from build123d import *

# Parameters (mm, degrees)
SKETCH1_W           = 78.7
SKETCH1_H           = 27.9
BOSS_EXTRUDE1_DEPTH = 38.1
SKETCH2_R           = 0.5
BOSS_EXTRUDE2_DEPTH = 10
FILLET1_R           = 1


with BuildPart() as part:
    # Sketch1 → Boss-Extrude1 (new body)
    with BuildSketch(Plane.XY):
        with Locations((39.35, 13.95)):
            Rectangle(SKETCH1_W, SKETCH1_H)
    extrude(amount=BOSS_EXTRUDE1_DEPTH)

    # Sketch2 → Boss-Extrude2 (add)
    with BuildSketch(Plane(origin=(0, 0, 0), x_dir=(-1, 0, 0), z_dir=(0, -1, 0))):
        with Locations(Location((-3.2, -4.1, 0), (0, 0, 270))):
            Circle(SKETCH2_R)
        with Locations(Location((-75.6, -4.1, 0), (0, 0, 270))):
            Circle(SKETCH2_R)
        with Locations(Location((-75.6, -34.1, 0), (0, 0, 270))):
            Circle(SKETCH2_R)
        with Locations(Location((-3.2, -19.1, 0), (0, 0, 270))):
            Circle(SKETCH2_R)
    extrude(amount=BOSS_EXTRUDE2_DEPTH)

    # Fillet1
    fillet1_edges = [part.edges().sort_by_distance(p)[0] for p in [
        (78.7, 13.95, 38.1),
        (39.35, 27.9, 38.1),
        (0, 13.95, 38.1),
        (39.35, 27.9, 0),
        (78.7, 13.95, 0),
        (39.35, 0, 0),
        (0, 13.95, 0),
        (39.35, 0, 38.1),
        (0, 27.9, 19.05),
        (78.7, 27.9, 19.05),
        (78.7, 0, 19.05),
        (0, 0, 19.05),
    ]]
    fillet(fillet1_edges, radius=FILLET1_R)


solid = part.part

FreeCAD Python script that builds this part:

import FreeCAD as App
import Part
import Sketcher

V = App.Vector


def edges_at(feature, points):
    """Names of the edges that pass closest to the given points."""
    edges = feature.Shape.Edges
    near = lambda p: min(range(len(edges)), key=lambda i: edges[i].distToShape(Part.Vertex(*p))[0])
    return sorted({f"Edge{near(p) + 1}" for p in points})


def add_polygon(sketch, points):
    """Adds a closed chain of lines whose ends are joined by coincident constraints."""
    first, n = sketch.GeometryCount, len(points)
    for a, b in zip(points, points[1:] + points[:1]):
        sketch.addGeometry(Part.LineSegment(App.Vector(*a, 0), App.Vector(*b, 0)), False)
    for i in range(n):
        sketch.addConstraint(Sketcher.Constraint("Coincident", first + i, 2, first + (i + 1) % n, 1))

doc = App.newDocument("Part")
body = doc.addObject("PartDesign::Body", "Body")

# Sketch on XY plane
sketch1 = doc.addObject("Sketcher::SketchObject", "Sketch")
body.addObject(sketch1)
sketch1.AttachmentSupport = (doc.XY_Plane, [""])
sketch1.MapMode = "FlatFace"
add_polygon(sketch1, [(0, 27.9), (0, 0), (78.7, 0), (78.7, 27.9)])  # lines 0-3
sketch1.addConstraint(Sketcher.Constraint("Vertical", 0))
sketch1.addConstraint(Sketcher.Constraint("Horizontal", 1))
sketch1.addConstraint(Sketcher.Constraint("Vertical", 2))
sketch1.addConstraint(Sketcher.Constraint("Horizontal", 3))
sketch1.addConstraint(Sketcher.Constraint("Coincident", 0, 2, -1, 1))
sketch1.addConstraint(Sketcher.Constraint("DistanceX", 1, 1, 1, 2, 78.7))
sketch1.addConstraint(Sketcher.Constraint("DistanceY", 0, 2, 0, 1, 27.9))
pad1 = doc.addObject("PartDesign::Pad", "Pad")
body.addObject(pad1)
pad1.Profile = sketch1
pad1.Length = 38.1

# Sketch on XZ plane
sketch2 = doc.addObject("Sketcher::SketchObject", "Sketch001")
body.addObject(sketch2)
sketch2.AttachmentSupport = (doc.XZ_Plane, [""])
sketch2.MapMode = "FlatFace"
sketch2.addGeometry(Part.Circle(V(3.2, 4.1, 0), V(0, 0, 1), 0.5), False)
sketch2.addGeometry(Part.Circle(V(75.6, 4.1, 0), V(0, 0, 1), 0.5), False)
sketch2.addGeometry(Part.Circle(V(75.6, 34.1, 0), V(0, 0, 1), 0.5), False)
sketch2.addGeometry(Part.Circle(V(3.2, 19.1, 0), V(0, 0, 1), 0.5), False)
sketch2.addConstraint(Sketcher.Constraint("Equal", 0, 1))
sketch2.addConstraint(Sketcher.Constraint("Equal", 1, 2))
sketch2.addConstraint(Sketcher.Constraint("Equal", 2, 3))
sketch2.addConstraint(Sketcher.Constraint("Horizontal", 0, 3, 1, 3))
sketch2.addConstraint(Sketcher.Constraint("Vertical", 1, 3, 2, 3))
sketch2.addConstraint(Sketcher.Constraint("Vertical", 0, 3, 3, 3))
sketch2.addConstraint(Sketcher.Constraint("Diameter", 0, 1.0))
sketch2.addConstraint(Sketcher.Constraint("DistanceY", 1, 3, 2, 3, 30.0))
sketch2.addConstraint(Sketcher.Constraint("DistanceY", 0, 3, 3, 3, 15.0))
sketch2.addConstraint(Sketcher.Constraint("DistanceX", -1, 1, 0, 3, 3.2))
sketch2.addConstraint(Sketcher.Constraint("DistanceY", -1, 1, 0, 3, 4.1))
sketch2.addConstraint(Sketcher.Constraint("DistanceX", -1, 1, 1, 3, 75.6))
pad2 = doc.addObject("PartDesign::Pad", "Pad001")
body.addObject(pad2)
pad2.Profile = sketch2
pad2.Length = 10
doc.recompute()

fillet = doc.addObject("PartDesign::Fillet", "Fillet")
body.addObject(fillet)
fillet.Base = (pad2, edges_at(pad2, [
    (78.7, 13.95, 38.1),
    (39.35, 27.9, 38.1),
    (0, 13.95, 38.1),
    (39.35, 27.9, 0),
    (78.7, 13.95, 0),
    (39.35, 0, 0),
    (0, 13.95, 0),
    (39.35, 0, 38.1),
    (0, 27.9, 19.05),
    (78.7, 27.9, 19.05),
    (78.7, 0, 19.05),
    (0, 0, 19.05),
]))
fillet.Radius = 1

doc.recompute()
